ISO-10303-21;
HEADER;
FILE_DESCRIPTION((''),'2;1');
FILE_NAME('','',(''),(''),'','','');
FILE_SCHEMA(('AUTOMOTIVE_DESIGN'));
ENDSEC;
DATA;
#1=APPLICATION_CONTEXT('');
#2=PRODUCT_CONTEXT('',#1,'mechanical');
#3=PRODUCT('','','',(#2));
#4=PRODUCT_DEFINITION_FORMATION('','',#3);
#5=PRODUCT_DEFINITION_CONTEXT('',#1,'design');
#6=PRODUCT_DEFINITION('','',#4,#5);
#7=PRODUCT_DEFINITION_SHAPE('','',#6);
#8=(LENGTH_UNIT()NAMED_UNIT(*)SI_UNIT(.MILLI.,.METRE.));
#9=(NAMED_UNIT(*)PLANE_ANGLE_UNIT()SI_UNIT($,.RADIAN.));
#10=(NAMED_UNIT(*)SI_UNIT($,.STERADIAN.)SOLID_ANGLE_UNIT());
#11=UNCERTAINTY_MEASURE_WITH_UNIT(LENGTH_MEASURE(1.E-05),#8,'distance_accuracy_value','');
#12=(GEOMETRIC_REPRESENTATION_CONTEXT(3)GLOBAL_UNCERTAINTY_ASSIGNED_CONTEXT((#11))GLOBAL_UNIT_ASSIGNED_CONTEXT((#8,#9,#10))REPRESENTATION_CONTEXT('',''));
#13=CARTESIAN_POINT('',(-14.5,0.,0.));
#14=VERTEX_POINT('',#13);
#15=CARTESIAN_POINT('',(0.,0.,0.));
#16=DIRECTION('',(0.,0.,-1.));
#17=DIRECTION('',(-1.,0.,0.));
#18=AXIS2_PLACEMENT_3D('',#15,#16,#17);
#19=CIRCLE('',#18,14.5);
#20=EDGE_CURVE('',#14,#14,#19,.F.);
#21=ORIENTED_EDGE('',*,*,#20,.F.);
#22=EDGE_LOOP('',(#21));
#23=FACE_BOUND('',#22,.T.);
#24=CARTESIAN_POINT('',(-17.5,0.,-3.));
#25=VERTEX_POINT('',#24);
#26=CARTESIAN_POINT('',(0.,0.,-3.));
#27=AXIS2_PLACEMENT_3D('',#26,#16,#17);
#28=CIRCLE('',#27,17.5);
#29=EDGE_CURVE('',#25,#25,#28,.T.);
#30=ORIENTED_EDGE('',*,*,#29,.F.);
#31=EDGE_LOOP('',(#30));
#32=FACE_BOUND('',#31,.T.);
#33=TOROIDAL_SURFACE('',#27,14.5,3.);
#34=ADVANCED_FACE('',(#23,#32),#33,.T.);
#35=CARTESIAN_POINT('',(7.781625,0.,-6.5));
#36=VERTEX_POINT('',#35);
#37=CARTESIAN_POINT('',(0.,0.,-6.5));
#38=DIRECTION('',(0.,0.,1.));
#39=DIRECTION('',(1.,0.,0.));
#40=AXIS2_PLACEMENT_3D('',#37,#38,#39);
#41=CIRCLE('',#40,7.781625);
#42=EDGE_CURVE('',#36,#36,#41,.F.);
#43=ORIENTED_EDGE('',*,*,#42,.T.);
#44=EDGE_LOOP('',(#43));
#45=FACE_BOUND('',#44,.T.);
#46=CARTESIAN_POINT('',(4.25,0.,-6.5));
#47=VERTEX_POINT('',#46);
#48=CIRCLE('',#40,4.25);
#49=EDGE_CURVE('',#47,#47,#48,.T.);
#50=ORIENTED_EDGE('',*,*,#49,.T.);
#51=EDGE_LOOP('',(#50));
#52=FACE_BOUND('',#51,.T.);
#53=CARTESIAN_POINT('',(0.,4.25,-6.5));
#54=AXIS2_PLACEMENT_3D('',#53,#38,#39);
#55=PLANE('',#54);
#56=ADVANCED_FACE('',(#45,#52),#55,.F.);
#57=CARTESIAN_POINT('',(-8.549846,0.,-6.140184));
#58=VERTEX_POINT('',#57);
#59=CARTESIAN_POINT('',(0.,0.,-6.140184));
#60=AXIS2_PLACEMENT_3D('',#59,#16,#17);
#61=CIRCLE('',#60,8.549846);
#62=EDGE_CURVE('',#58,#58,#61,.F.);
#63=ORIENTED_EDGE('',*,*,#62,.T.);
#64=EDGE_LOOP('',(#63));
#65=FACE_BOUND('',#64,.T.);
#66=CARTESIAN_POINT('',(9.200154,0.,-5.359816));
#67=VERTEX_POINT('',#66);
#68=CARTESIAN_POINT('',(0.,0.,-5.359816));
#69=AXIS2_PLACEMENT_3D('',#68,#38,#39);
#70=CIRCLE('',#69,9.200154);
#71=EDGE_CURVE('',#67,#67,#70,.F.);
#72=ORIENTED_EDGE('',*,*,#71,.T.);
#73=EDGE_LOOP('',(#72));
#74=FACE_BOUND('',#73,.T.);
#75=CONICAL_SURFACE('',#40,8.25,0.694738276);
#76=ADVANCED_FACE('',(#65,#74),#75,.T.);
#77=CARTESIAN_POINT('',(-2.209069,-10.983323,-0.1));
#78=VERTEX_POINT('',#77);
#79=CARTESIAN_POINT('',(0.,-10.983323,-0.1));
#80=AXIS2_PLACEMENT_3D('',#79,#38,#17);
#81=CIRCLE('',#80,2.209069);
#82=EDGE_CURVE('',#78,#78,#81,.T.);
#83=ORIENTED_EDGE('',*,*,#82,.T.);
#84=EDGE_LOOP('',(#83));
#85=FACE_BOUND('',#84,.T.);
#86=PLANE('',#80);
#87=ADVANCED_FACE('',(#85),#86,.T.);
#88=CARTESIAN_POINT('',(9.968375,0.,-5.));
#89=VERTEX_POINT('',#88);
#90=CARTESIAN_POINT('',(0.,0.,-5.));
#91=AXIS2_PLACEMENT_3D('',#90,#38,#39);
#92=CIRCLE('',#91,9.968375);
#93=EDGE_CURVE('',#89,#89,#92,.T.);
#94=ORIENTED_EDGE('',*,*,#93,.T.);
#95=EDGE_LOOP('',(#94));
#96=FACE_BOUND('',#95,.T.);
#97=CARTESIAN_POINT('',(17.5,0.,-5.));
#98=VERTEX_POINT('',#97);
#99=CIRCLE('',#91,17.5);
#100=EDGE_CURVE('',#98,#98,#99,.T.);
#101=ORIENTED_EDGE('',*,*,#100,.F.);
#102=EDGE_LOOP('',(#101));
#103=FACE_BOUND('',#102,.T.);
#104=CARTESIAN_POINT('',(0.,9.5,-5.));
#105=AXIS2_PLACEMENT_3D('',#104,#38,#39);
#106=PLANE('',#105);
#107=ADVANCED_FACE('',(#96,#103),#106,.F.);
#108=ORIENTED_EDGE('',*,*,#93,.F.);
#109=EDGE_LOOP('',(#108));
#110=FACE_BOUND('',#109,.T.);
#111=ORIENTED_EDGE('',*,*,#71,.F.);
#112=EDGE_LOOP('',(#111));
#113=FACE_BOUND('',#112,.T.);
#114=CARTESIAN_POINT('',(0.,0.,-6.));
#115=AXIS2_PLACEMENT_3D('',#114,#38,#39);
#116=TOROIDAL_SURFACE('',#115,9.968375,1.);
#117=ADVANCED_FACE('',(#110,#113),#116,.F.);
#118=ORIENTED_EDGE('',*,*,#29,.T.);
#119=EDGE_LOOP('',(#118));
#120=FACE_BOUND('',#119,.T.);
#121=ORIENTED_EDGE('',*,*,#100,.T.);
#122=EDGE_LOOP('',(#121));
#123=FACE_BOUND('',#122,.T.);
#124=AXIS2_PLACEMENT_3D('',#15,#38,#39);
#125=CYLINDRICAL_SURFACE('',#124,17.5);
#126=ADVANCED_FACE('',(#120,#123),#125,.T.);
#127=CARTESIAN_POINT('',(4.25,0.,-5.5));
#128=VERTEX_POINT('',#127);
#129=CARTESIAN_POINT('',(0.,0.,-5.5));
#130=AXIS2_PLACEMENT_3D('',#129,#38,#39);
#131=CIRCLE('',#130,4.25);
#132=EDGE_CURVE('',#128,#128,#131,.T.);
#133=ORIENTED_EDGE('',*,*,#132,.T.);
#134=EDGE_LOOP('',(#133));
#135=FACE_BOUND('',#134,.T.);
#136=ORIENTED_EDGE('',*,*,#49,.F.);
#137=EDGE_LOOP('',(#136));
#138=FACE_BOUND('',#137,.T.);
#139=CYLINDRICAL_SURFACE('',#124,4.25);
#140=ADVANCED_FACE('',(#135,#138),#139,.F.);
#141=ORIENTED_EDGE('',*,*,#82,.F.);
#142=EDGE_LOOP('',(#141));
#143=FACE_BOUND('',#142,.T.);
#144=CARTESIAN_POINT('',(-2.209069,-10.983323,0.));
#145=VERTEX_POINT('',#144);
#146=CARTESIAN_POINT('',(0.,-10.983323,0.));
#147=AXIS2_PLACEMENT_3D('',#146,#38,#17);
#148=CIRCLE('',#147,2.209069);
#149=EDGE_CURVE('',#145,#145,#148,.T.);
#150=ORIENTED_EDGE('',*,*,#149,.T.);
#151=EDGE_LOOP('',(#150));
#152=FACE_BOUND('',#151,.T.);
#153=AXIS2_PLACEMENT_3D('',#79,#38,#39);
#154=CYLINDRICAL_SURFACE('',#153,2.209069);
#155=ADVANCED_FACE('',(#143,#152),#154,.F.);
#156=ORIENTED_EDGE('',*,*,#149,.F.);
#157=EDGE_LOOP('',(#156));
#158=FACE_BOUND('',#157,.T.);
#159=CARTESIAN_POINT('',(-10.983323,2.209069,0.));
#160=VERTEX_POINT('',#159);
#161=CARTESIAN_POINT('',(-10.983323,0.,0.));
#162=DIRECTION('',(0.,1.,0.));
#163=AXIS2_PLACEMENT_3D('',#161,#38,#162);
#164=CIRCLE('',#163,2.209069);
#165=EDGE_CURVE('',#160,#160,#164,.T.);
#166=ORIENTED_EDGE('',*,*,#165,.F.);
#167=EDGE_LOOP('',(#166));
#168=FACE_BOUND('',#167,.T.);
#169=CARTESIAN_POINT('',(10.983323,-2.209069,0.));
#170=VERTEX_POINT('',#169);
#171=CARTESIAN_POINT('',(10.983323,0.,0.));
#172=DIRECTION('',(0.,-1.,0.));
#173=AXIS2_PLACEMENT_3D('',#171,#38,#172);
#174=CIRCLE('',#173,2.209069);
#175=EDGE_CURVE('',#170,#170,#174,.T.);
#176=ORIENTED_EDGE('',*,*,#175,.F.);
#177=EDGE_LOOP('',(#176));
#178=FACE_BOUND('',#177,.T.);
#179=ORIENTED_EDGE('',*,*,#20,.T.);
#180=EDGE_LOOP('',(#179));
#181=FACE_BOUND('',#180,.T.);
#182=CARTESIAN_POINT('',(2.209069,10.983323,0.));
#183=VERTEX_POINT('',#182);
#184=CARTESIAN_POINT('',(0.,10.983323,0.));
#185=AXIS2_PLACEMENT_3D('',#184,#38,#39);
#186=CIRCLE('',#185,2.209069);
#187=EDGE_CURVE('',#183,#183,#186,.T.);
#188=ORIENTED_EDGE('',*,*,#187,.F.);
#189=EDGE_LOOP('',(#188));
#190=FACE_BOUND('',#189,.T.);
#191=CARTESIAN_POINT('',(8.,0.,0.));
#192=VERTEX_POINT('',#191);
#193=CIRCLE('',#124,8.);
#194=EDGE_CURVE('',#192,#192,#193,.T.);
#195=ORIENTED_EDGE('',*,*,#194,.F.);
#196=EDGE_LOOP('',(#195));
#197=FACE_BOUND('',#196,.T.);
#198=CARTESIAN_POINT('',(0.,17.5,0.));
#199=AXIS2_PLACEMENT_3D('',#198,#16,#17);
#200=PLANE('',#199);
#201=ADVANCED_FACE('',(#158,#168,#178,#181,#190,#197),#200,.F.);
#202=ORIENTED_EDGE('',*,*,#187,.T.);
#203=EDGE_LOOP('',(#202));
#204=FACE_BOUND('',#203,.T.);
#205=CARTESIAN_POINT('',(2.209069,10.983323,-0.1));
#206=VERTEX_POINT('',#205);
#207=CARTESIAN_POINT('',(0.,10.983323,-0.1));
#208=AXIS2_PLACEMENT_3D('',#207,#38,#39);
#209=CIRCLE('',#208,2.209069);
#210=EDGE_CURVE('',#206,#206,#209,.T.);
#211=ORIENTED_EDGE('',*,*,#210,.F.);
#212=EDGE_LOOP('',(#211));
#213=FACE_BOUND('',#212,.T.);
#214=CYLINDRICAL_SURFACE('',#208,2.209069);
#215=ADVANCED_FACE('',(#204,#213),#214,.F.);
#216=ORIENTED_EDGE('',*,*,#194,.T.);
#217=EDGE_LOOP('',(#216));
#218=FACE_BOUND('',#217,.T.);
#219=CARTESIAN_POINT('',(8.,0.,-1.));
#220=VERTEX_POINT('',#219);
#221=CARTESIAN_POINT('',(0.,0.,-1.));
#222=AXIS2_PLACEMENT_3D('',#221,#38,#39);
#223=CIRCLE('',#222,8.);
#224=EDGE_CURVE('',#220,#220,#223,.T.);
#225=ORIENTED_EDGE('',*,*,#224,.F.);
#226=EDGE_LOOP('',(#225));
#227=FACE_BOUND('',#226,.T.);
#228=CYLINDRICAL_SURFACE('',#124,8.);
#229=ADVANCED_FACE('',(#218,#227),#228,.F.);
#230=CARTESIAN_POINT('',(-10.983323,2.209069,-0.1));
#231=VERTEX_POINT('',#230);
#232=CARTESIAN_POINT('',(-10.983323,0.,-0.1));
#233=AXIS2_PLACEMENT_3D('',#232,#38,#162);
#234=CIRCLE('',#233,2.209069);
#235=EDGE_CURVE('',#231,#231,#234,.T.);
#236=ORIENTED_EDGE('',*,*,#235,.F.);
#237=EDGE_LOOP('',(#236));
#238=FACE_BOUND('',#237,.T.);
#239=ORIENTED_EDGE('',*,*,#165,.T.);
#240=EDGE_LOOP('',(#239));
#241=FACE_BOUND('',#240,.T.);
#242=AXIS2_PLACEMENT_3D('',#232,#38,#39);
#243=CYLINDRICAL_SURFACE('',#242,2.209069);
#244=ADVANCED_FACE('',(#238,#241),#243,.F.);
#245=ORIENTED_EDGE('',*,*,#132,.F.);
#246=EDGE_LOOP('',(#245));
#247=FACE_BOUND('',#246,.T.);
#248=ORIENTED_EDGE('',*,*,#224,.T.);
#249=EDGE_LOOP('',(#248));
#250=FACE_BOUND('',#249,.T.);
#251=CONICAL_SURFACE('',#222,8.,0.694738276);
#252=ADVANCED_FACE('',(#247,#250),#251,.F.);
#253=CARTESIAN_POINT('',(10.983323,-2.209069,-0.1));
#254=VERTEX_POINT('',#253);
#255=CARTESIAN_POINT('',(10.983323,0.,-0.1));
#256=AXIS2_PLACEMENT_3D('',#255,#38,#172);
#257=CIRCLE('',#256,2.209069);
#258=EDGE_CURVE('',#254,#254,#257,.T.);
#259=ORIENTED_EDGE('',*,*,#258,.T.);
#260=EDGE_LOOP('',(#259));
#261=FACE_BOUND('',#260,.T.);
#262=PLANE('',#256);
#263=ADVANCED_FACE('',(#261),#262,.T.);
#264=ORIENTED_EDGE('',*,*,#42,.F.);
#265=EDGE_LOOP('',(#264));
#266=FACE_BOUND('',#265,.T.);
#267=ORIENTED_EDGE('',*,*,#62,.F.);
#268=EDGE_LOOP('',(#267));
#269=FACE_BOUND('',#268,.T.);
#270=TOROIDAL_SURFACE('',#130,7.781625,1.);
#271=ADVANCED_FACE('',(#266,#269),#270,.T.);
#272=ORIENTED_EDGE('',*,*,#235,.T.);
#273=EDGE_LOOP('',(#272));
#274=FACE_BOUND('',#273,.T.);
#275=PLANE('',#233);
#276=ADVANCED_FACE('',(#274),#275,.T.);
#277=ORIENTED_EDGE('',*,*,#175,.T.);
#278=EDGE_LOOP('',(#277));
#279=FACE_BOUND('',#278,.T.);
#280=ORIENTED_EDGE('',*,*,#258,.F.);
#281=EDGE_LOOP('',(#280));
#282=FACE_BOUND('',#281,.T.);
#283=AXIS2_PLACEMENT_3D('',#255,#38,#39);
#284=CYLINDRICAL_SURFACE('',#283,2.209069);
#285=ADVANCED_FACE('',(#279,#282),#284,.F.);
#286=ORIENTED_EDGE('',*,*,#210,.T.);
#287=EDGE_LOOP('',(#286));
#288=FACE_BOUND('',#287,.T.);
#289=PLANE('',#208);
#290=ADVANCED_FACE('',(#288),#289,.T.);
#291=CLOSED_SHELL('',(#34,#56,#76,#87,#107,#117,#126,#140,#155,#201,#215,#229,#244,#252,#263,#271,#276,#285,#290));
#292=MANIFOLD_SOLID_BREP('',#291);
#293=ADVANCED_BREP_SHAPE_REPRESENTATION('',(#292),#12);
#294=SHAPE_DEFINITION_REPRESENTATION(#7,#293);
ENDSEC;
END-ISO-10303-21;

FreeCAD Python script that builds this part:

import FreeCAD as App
import Part
import Sketcher
from FreeCAD import Vector
Q = App.Units.Quantity


def edges_at(feature, points):
    """Names of the edges that pass closest to the given points."""
    edges = feature.Shape.Edges
    near = lambda p: min(range(len(edges)), key=lambda i: edges[i].distToShape(Part.Vertex(*p))[0])
    return sorted({f"Edge{near(p) + 1}" for p in points})


def add_polygon(sketch, points):
    """Adds a closed chain of lines whose ends are joined by coincident constraints."""
    first, n = sketch.GeometryCount, len(points)
    for a, b in zip(points, points[1:] + points[:1]):
        sketch.addGeometry(Part.LineSegment(App.Vector(*a, 0), App.Vector(*b, 0)), False)
    for i in range(n):
        sketch.addConstraint(Sketcher.Constraint("Coincident", first + i, 2, first + (i + 1) % n, 1))

doc = App.newDocument("Part")
body = doc.addObject("PartDesign::Body", "Body")

sketch1 = body.newObject("Sketcher::SketchObject", "Sketch")
sketch1.AttachmentSupport = (doc.getObject("YZ_Plane"), [""])
sketch1.MapMode = "FlatFace"
add_polygon(sketch1, [(4.25, -6.5), (8.25, -6.5), (9.5, -5), (17.5, -5), (17.5, 0), (8, 0), (8, -1), (4.25, -5.5)])
sketch1.addConstraint([
    Sketcher.Constraint("Horizontal", 0),
    Sketcher.Constraint("Horizontal", 2),
    Sketcher.Constraint("Vertical", 3),
    Sketcher.Constraint("Horizontal", 4),
    Sketcher.Constraint("Vertical", 5),
    Sketcher.Constraint("Vertical", 7),
    Sketcher.Constraint("PointOnObject", 3, 2, -1),
    Sketcher.Constraint("Parallel", 1, 6),
    Sketcher.Constraint("Equal", 5, 7),
    Sketcher.Constraint("DistanceX", 0, 1, 0, 2, Q("4 mm")),
    Sketcher.Constraint("DistanceX", 2, 1, 2, 2, Q("8 mm")),
    Sketcher.Constraint("DistanceY", 3, 1, 3, 2, Q("5 mm")),
    Sketcher.Constraint("DistanceY", 5, 2, 5, 1, Q("1 mm")),
    Sketcher.Constraint("DistanceX", 4, 2, 4, 1, Q("9.5 mm")),
    Sketcher.Constraint("DistanceX", -1, 1, 4, 2, Q("8 mm")),
    Sketcher.Constraint("DistanceY", 0, 2, -1, 1, Q("6.5 mm")),
])
revolution = body.newObject("PartDesign::Revolution", "Revolution")
revolution.Profile = sketch1
revolution.ReferenceAxis = (sketch1, ["V_Axis"])
revolution.Angle = 360
doc.recompute()

fillet = body.newObject("PartDesign::Fillet", "Fillet")
fillet.Base = (revolution, edges_at(revolution, [(-17.5, 0, 0)]))
fillet.Radius = 3

sketch2 = body.newObject("Sketcher::SketchObject", "Sketch001")
sketch2.AttachmentSupport = (doc.getObject("XY_Plane"), [""])
sketch2.MapMode = "FlatFace"
sketch2.addGeometry(Part.Circle(Vector(0, 10.983323, 0), Vector(0, 0, 1), 2.209069), False)
sketch2.addConstraint([
    Sketcher.Constraint("PointOnObject", 0, 3, -2),
    Sketcher.Constraint("Diameter", 0, Q("4.418139 mm")),
    Sketcher.Constraint("DistanceY", -1, 1, 0, 3, Q("10.983323 mm")),
])
pocket1 = body.newObject("PartDesign::Pocket", "Pocket")
pocket1.Profile = sketch2
pocket1.Length = 0.1
doc.recompute()

polarpattern = body.newObject("PartDesign::PolarPattern", "PolarPattern")
polarpattern.Originals = [pocket1]
polarpattern.Axis = (doc.getObject("Z_Axis"), [""])
polarpattern.Angle = 360
polarpattern.Occurrences = 4
body.Tip = polarpattern
doc.recompute()

fillet2 = body.newObject("PartDesign::Fillet", "Fillet001")
fillet2.Base = (polarpattern, edges_at(polarpattern, [(-9.5, 0, -5), (-8.25, 0, -6.5)]))
fillet2.Radius = 1

doc.recompute()
